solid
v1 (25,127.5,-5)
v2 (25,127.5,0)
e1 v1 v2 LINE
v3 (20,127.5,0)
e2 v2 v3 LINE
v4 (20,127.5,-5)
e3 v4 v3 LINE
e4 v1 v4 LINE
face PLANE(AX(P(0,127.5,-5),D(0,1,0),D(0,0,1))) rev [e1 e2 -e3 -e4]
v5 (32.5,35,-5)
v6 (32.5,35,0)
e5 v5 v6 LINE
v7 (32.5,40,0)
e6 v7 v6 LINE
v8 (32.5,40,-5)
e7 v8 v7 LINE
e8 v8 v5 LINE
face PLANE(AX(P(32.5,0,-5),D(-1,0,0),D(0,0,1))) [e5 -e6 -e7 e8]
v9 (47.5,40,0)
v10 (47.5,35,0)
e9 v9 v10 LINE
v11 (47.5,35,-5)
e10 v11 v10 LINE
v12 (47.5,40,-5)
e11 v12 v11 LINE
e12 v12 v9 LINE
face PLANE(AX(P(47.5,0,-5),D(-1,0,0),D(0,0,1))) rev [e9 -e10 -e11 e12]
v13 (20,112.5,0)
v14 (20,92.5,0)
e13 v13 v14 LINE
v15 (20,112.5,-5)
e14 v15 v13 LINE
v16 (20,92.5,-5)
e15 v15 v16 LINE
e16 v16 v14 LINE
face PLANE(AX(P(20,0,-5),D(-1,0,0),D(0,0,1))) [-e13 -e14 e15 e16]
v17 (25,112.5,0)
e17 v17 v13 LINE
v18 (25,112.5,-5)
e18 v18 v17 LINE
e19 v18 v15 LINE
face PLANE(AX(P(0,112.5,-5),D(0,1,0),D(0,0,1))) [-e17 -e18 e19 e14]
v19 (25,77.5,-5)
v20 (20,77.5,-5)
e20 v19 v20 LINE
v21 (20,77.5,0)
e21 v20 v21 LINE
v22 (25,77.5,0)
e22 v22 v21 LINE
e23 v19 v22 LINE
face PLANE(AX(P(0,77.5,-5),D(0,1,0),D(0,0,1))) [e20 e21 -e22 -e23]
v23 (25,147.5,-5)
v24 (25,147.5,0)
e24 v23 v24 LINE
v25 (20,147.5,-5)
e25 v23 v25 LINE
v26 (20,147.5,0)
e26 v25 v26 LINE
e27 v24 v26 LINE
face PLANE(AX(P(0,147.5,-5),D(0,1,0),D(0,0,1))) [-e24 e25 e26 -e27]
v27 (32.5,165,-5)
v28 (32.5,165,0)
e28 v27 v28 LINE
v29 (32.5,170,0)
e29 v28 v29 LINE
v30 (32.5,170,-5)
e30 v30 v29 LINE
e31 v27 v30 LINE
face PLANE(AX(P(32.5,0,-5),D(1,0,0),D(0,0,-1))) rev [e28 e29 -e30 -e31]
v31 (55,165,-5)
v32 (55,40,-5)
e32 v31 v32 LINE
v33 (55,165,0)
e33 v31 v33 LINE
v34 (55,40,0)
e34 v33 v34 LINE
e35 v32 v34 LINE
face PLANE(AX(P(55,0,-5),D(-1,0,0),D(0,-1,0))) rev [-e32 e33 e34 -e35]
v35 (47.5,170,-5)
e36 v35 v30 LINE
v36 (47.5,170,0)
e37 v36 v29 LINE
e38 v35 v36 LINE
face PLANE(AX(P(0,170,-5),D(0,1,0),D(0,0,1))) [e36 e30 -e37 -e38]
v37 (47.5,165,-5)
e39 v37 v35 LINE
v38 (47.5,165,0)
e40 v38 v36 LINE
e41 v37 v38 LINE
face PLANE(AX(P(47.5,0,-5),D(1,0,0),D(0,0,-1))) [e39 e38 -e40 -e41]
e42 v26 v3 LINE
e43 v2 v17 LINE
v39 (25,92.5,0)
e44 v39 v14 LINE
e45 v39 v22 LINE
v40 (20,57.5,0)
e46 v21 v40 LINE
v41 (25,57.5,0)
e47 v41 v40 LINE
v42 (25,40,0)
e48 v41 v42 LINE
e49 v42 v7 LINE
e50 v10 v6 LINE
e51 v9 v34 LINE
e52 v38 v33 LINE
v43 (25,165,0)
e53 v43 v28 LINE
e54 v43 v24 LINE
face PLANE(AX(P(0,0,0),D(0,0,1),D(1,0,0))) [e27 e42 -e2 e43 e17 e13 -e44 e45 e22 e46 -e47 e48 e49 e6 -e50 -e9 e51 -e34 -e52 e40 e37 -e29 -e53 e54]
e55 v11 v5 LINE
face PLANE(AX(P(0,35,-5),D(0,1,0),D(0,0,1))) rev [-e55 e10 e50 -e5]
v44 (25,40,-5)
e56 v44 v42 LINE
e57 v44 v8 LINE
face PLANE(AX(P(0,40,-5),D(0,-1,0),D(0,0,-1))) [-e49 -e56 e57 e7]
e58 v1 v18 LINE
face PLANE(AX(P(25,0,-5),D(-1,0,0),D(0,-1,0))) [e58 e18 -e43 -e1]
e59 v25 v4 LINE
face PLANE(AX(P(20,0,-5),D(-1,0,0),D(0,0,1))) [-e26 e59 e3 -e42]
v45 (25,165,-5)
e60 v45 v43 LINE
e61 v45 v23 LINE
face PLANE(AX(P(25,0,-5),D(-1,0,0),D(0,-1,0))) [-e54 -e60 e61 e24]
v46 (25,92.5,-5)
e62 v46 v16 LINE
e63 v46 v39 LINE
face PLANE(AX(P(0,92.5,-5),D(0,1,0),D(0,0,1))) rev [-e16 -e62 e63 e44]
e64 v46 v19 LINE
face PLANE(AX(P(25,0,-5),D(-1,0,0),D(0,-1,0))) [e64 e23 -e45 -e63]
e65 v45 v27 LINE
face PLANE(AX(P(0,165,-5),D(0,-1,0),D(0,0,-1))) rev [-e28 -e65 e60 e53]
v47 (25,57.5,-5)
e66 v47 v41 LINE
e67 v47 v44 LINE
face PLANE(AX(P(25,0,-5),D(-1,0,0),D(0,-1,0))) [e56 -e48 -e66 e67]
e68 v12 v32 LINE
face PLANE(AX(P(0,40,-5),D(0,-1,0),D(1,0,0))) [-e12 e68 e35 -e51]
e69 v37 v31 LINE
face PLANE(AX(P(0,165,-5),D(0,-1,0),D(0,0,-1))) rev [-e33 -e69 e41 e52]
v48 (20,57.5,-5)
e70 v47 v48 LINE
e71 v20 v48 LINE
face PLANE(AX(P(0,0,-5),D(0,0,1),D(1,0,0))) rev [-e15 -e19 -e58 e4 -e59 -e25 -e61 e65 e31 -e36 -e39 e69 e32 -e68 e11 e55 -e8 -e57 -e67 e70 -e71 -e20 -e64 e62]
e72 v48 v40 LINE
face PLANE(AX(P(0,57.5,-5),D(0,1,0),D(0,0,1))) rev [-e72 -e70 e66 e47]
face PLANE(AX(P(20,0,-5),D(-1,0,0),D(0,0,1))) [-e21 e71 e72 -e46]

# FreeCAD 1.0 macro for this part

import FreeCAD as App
import Part
import Sketcher


def add_polygon(sketch, points):
    """Adds a closed chain of lines whose ends are joined by coincident constraints."""
    first, n = sketch.GeometryCount, len(points)
    for a, b in zip(points, points[1:] + points[:1]):
        sketch.addGeometry(Part.LineSegment(App.Vector(*a, 0), App.Vector(*b, 0)), False)
    for i in range(n):
        sketch.addConstraint(Sketcher.Constraint("Coincident", first + i, 2, first + (i + 1) % n, 1))

doc = App.newDocument("Part")
body = doc.addObject("PartDesign::Body", "Body")

sketch1 = body.newObject("Sketcher::SketchObject", "Sketch")
sketch1.AttachmentSupport = (doc.getObject("XY_Plane"), [""])
sketch1.MapMode = "FlatFace"
add_polygon(sketch1, [(20, 128), (25, 128), (25, 112), (20, 112), (20, 92), (25, 92), (25, 78), (20, 78), (20, 58), (25, 58), (25, 40), (32, 40), (32, 35), (48, 35), (48, 40), (55, 40), (55, 165), (48, 165), (48, 170), (32, 170), (32, 165), (25, 165), (25, 148), (20, 148)])
sketch1.addConstraint(Sketcher.Constraint("Horizontal", 0))
sketch1.addConstraint(Sketcher.Constraint("Vertical", 1))
sketch1.addConstraint(Sketcher.Constraint("Horizontal", 2))
sketch1.addConstraint(Sketcher.Constraint("Vertical", 3))
sketch1.addConstraint(Sketcher.Constraint("Horizontal", 4))
sketch1.addConstraint(Sketcher.Constraint("Vertical", 5))
sketch1.addConstraint(Sketcher.Constraint("Horizontal", 6))
sketch1.addConstraint(Sketcher.Constraint("Vertical", 7))
sketch1.addConstraint(Sketcher.Constraint("Horizontal", 8))
sketch1.addConstraint(Sketcher.Constraint("Vertical", 9))
sketch1.addConstraint(Sketcher.Constraint("Horizontal", 10))
sketch1.addConstraint(Sketcher.Constraint("Vertical", 11))
sketch1.addConstraint(Sketcher.Constraint("Horizontal", 12))
sketch1.addConstraint(Sketcher.Constraint("Vertical", 13))
sketch1.addConstraint(Sketcher.Constraint("Horizontal", 14))
sketch1.addConstraint(Sketcher.Constraint("Vertical", 15))
sketch1.addConstraint(Sketcher.Constraint("Horizontal", 16))
sketch1.addConstraint(Sketcher.Constraint("Vertical", 17))
sketch1.addConstraint(Sketcher.Constraint("Horizontal", 18))
sketch1.addConstraint(Sketcher.Constraint("Vertical", 19))
sketch1.addConstraint(Sketcher.Constraint("Horizontal", 20))
sketch1.addConstraint(Sketcher.Constraint("Vertical", 21))
sketch1.addConstraint(Sketcher.Constraint("Horizontal", 22))
sketch1.addConstraint(Sketcher.Constraint("Vertical", 23))
sketch1.addConstraint(Sketcher.Constraint("Horizontal", 10, 2, 13, 2))
sketch1.addConstraint(Sketcher.Constraint("Horizontal", 16, 2, 19, 2))
sketch1.addConstraint(Sketcher.Constraint("Vertical", 1, 2, 4, 2))
sketch1.addConstraint(Sketcher.Constraint("Vertical", 3, 2, 6, 2))
sketch1.addConstraint(Sketcher.Constraint("Vertical", 5, 2, 8, 2))
sketch1.addConstraint(Sketcher.Constraint("Vertical", 13, 2, 16, 2))
sketch1.addConstraint(Sketcher.Constraint("Vertical", 11, 2, 18, 2))
sketch1.addConstraint(Sketcher.Constraint("Vertical", 9, 2, 20, 2))
sketch1.addConstraint(Sketcher.Constraint("Vertical", 7, 2, 22, 2))
sketch1.addConstraint(Sketcher.Constraint("Equal", 10, 14))
sketch1.addConstraint(Sketcher.Constraint("Equal", 18, 1))
sketch1.addConstraint(Sketcher.Constraint("Equal", 1, 5))
sketch1.addConstraint(Sketcher.Constraint("Equal", 3, 7))
sketch1.addConstraint(Sketcher.Constraint("Equal", 22, 11))
sketch1.addConstraint(Sketcher.Constraint("Equal", 13, 17))
sketch1.addConstraint(Sketcher.Constraint("Equal", 9, 21))
sketch1.addConstraint(Sketcher.Constraint("Equal", 7, 23))
sketch1.addConstraint(Sketcher.Constraint("DistanceX", 0, 1, 0, 2, 5.0))
sketch1.addConstraint(Sketcher.Constraint("DistanceX", 12, 1, 12, 2, 15.0))
sketch1.addConstraint(Sketcher.Constraint("DistanceY", 3, 2, 3, 1, 20.0))
sketch1.addConstraint(Sketcher.Constraint("DistanceY", 15, 1, 15, 2, 125.0))
sketch1.addConstraint(Sketcher.Constraint("DistanceX", 10, 1, 10, 2, 7.5))
sketch1.addConstraint(Sketcher.Constraint("DistanceX", -1, 1, 0, 2, 25.0))
sketch1.addConstraint(Sketcher.Constraint("DistanceY", -1, 1, 9, 2, 40.0))
pad1 = body.newObject("PartDesign::Pad", "Pad")
pad1.Profile = sketch1
pad1.Length = 5
pad1.Reversed = True

doc.recompute()
